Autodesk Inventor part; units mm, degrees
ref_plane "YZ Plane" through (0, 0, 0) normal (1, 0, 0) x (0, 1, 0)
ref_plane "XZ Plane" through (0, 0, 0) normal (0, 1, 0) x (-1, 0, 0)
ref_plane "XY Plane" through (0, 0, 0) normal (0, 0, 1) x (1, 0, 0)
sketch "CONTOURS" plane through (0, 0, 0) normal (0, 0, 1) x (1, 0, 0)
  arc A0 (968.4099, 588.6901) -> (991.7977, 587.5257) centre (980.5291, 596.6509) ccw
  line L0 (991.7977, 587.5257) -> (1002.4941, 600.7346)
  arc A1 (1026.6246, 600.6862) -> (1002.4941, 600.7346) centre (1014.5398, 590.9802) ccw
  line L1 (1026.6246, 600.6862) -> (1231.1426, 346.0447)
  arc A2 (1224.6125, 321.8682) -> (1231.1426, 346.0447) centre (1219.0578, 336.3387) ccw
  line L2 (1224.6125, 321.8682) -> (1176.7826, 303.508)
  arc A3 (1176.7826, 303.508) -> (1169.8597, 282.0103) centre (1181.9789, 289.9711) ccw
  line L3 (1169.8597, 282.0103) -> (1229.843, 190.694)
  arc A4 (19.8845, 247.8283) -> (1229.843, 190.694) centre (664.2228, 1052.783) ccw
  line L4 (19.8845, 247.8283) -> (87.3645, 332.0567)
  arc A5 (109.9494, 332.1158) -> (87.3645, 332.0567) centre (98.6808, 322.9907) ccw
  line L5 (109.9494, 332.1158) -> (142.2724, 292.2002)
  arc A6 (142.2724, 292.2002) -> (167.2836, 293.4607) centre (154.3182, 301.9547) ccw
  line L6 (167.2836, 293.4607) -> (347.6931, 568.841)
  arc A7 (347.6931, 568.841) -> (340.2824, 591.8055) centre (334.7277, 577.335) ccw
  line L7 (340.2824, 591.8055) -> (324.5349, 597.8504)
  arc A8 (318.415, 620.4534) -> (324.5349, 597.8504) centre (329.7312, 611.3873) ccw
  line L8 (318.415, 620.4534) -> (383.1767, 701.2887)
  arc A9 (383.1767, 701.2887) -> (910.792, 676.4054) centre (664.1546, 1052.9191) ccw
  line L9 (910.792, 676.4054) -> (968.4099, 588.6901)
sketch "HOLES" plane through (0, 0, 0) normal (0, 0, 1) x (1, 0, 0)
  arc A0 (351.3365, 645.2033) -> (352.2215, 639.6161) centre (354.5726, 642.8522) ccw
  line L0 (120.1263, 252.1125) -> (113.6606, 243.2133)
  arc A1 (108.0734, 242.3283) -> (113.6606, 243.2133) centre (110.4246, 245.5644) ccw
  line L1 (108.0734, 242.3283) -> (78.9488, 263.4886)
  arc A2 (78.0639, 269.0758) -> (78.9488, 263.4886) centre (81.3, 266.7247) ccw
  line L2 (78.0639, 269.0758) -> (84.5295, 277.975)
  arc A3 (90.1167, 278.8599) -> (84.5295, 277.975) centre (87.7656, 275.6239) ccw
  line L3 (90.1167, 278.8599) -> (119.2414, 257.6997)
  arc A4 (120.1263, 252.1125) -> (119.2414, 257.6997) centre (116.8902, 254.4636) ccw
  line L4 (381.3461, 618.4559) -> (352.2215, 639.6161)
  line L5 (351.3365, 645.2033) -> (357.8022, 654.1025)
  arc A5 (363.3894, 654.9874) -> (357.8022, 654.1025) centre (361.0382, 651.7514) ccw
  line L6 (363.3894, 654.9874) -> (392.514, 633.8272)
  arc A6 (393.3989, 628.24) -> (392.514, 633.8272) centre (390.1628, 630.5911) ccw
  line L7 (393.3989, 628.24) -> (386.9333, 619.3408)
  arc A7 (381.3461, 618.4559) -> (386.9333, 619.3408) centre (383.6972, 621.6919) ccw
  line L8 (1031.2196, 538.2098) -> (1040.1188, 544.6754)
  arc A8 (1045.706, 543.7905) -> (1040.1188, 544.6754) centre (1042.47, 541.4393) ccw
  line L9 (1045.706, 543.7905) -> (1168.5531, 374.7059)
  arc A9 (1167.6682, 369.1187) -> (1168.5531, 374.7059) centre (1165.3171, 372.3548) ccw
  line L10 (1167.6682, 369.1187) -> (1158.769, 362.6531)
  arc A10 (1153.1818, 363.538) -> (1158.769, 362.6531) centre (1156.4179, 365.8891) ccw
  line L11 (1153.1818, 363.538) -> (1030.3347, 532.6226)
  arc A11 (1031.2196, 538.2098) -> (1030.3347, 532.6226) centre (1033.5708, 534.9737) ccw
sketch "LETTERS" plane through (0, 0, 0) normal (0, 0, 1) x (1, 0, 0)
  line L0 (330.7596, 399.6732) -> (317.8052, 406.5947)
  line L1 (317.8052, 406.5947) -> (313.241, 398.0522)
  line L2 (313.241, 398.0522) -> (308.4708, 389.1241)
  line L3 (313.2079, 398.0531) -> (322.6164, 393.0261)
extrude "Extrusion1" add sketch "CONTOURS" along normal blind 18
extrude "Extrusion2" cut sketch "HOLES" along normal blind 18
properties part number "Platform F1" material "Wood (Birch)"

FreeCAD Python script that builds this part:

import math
import FreeCAD as App
import Part
import Sketcher
from FreeCAD import Vector
Q = App.Units.Quantity

doc = App.newDocument("Part")
body = doc.addObject("PartDesign::Body", "Body")

sketch1 = body.newObject("Sketcher::SketchObject", "Sketch")
sketch1.AttachmentSupport = (doc.getObject("XY_Plane"), [""])
sketch1.MapMode = "FlatFace"
sketch1.addGeometry([
    Part.ArcOfCircle(Part.Circle(Vector(981, 597, 0), Vector(0, 0, 1), 14), math.radians(-147), math.radians(-39)),
    Part.LineSegment(Vector(968, 589, 0), Vector(911, 676, 0)),
    Part.ArcOfCircle(Part.Circle(Vector(664, 1053, 0), Vector(0, 0, 1), 450), math.radians(-129), math.radians(-57)),
    Part.LineSegment(Vector(383, 701, 0), Vector(318, 620, 0)),
    Part.ArcOfCircle(Part.Circle(Vector(330, 611, 0), Vector(0, 0, 1), 15), math.radians(141), math.radians(249)),
    Part.LineSegment(Vector(325, 598, 0), Vector(340, 592, 0)),
    Part.ArcOfCircle(Part.Circle(Vector(335, 577, 0), Vector(0, 0, 1), 15), math.radians(-33), math.radians(69)),
    Part.LineSegment(Vector(348, 569, 0), Vector(167, 293, 0)),
    Part.ArcOfCircle(Part.Circle(Vector(154, 302, 0), Vector(0, 0, 1), 16), math.radians(-141), math.radians(-33)),
    Part.LineSegment(Vector(142, 292, 0), Vector(110, 332, 0)),
    Part.ArcOfCircle(Part.Circle(Vector(99, 323, 0), Vector(0, 0, 1), 14), math.radians(39), math.radians(141)),
    Part.LineSegment(Vector(87, 332, 0), Vector(20, 248, 0)),
    Part.ArcOfCircle(Part.Circle(Vector(664, 1053, 0), Vector(0, 0, 1), 1031), math.radians(-129), math.radians(-57)),
    Part.LineSegment(Vector(1230, 191, 0), Vector(1170, 282, 0)),
    Part.ArcOfCircle(Part.Circle(Vector(1182, 290, 0), Vector(0, 0, 1), 14), math.radians(111), math.radians(213)),
    Part.LineSegment(Vector(1177, 304, 0), Vector(1225, 322, 0)),
    Part.ArcOfCircle(Part.Circle(Vector(1219, 336, 0), Vector(0, 0, 1), 16), math.radians(-69), math.radians(39)),
    Part.LineSegment(Vector(1231, 346, 0), Vector(1027, 601, 0)),
    Part.ArcOfCircle(Part.Circle(Vector(1015, 591, 0), Vector(0, 0, 1), 15), math.radians(39), math.radians(141)),
    Part.LineSegment(Vector(1002, 601, 0), Vector(992, 588, 0)),
], False)
sketch1.addConstraint([
    Sketcher.Constraint("Tangent", 0, 1, 1, 1),
    Sketcher.Constraint("Coincident", 1, 2, 2, 2),
    Sketcher.Constraint("Coincident", 2, 1, 3, 1),
    Sketcher.Constraint("Tangent", 3, 2, 4, 1),
    Sketcher.Constraint("Tangent", 4, 2, 5, 1),
    Sketcher.Constraint("Tangent", 5, 2, 6, 2),
    Sketcher.Constraint("Tangent", 6, 1, 7, 1),
    Sketcher.Constraint("Tangent", 7, 2, 8, 2),
    Sketcher.Constraint("Tangent", 8, 1, 9, 1),
    Sketcher.Constraint("Tangent", 9, 2, 10, 1),
    Sketcher.Constraint("Tangent", 10, 2, 11, 1),
    Sketcher.Constraint("Coincident", 11, 2, 12, 1),
    Sketcher.Constraint("Coincident", 12, 2, 13, 1),
    Sketcher.Constraint("Tangent", 13, 2, 14, 2),
    Sketcher.Constraint("Tangent", 14, 1, 15, 1),
    Sketcher.Constraint("Tangent", 15, 2, 16, 1),
    Sketcher.Constraint("Tangent", 16, 2, 17, 1),
    Sketcher.Constraint("Tangent", 17, 2, 18, 1),
    Sketcher.Constraint("Tangent", 18, 2, 19, 1),
    Sketcher.Constraint("Tangent", 19, 2, 0, 2),
    Sketcher.Constraint("Equal", 0, 4),
    Sketcher.Constraint("Equal", 6, 8),
    Sketcher.Constraint("Equal", 4, 10),
    Sketcher.Constraint("Equal", 10, 14),
    Sketcher.Constraint("Equal", 8, 16),
    Sketcher.Constraint("Equal", 16, 18),
    Sketcher.Constraint("Parallel", 3, 11),
    Sketcher.Constraint("Parallel", 1, 13),
    Sketcher.Constraint("Radius", 0, Q("14.5 mm")),
    Sketcher.Constraint("Radius", 6, Q("15.5 mm")),
    Sketcher.Constraint("Angle", 5, Q("-21 deg")),
    Sketcher.Constraint("Angle", 9, Q("129 deg")),
    Sketcher.Constraint("Angle", 15, Q("21 deg")),
    Sketcher.Constraint("Angle", 19, Q("-129 deg")),
    Sketcher.Constraint("Angle", 1, Q("123.2999 deg")),
    Sketcher.Constraint("Angle", 3, Q("-128.7002 deg")),
    Sketcher.Constraint("Radius", 12, Q("1031.079 mm")),
    Sketcher.Constraint("Angle", 7, Q("-123.23 deg")),
    Sketcher.Constraint("Angle", 17, Q("128.77 deg")),
    Sketcher.Constraint("Radius", 2, Q("450.1028 mm")),
    Sketcher.Constraint("DistanceX", -1, 1, 0, 1, Q("968.41 mm")),
    Sketcher.Constraint("DistanceY", -1, 1, 0, 1, Q("588.69 mm")),
    Sketcher.Constraint("DistanceX", 6, 3, 16, 3, Q("884.33 mm")),
    Sketcher.Constraint("DistanceX", 0, 1, 18, 3, Q("46.13 mm")),
    Sketcher.Constraint("DistanceY", 7, 2, 10, 3, Q("29.53 mm")),
    Sketcher.Constraint("DistanceX", 11, 2, 10, 2, Q("67.48 mm")),
    Sketcher.Constraint("DistanceX", 18, 3, 13, 2, Q("155.32 mm")),
    Sketcher.Constraint("DistanceY", 13, 2, 18, 3, Q("308.97 mm")),
    Sketcher.Constraint("Distance", 3, Q("103.578 mm")),
    Sketcher.Constraint("Distance", 7, Q("329.214 mm")),
    Sketcher.Constraint("Distance", 13, Q("109.255 mm")),
    Sketcher.Constraint("DistanceY", -1, 1, 2, 3, Q("1052.919 mm")),
    Sketcher.Constraint("DistanceY", -1, 1, 6, 3, Q("577.335 mm")),
    Sketcher.Constraint("DistanceX", -1, 1, 1, 2, Q("910.792 mm")),
])
pad1 = body.newObject("PartDesign::Pad", "Pad")
pad1.Profile = sketch1
pad1.Length = 18

sketch2 = body.newObject("Sketcher::SketchObject", "Sketch001")
sketch2.AttachmentSupport = (doc.getObject("XY_Plane"), [""])
sketch2.MapMode = "FlatFace"
sketch2.addGeometry([
    Part.LineSegment(Vector(357.8, 654.1, 0), Vector(351.3, 645.2, 0)),
    Part.ArcOfCircle(Part.Circle(Vector(354.6, 642.9, 0), Vector(0, 0, 1), 4), math.radians(144), math.radians(234)),
    Part.LineSegment(Vector(352.2, 639.6, 0), Vector(381.3, 618.5, 0)),
    Part.ArcOfCircle(Part.Circle(Vector(383.7, 621.7, 0), Vector(0, 0, 1), 4), math.radians(-126), math.radians(-36)),
    Part.LineSegment(Vector(386.9, 619.3, 0), Vector(393.4, 628.2, 0)),
    Part.ArcOfCircle(Part.Circle(Vector(390.2, 630.6, 0), Vector(0, 0, 1), 4), math.radians(-36), math.radians(54)),
    Part.LineSegment(Vector(392.5, 633.8, 0), Vector(363.4, 655, 0)),
    Part.ArcOfCircle(Part.Circle(Vector(361, 651.8, 0), Vector(0, 0, 1), 4), math.radians(54), math.radians(144)),
    Part.LineSegment(Vector(113.7, 243.2, 0), Vector(120.1, 252.1, 0)),
    Part.ArcOfCircle(Part.Circle(Vector(116.9, 254.5, 0), Vector(0, 0, 1), 4), math.radians(-36), math.radians(54)),
    Part.LineSegment(Vector(119.2, 257.7, 0), Vector(90.1, 278.9, 0)),
    Part.ArcOfCircle(Part.Circle(Vector(87.8, 275.6, 0), Vector(0, 0, 1), 4), math.radians(54), math.radians(144)),
    Part.LineSegment(Vector(84.5, 278, 0), Vector(78.1, 269.1, 0)),
    Part.ArcOfCircle(Part.Circle(Vector(81.3, 266.7, 0), Vector(0, 0, 1), 4), math.radians(144), math.radians(234)),
    Part.LineSegment(Vector(78.9, 263.5, 0), Vector(108.1, 242.3, 0)),
    Part.ArcOfCircle(Part.Circle(Vector(110.4, 245.6, 0), Vector(0, 0, 1), 4), math.radians(-126), math.radians(-36)),
    Part.LineSegment(Vector(1040.1, 544.7, 0), Vector(1031.2, 538.2, 0)),
    Part.ArcOfCircle(Part.Circle(Vector(1033.6, 535, 0), Vector(0, 0, 1), 4), math.radians(126), math.radians(216)),
    Part.LineSegment(Vector(1030.3, 532.6, 0), Vector(1153.2, 363.5, 0)),
    Part.ArcOfCircle(Part.Circle(Vector(1156.4, 365.9, 0), Vector(0, 0, 1), 4), math.radians(-144), math.radians(-54)),
    Part.LineSegment(Vector(1158.8, 362.7, 0), Vector(1167.7, 369.1, 0)),
    Part.ArcOfCircle(Part.Circle(Vector(1165.3, 372.4, 0), Vector(0, 0, 1), 4), math.radians(-54), math.radians(36)),
    Part.LineSegment(Vector(1168.6, 374.7, 0), Vector(1045.7, 543.8, 0)),
    Part.ArcOfCircle(Part.Circle(Vector(1042.5, 541.4, 0), Vector(0, 0, 1), 4), math.radians(36), math.radians(126)),
], False)
sketch2.addConstraint([
    Sketcher.Constraint("Tangent", 0, 2, 1, 1),
    Sketcher.Constraint("Tangent", 1, 2, 2, 1),
    Sketcher.Constraint("Tangent", 2, 2, 3, 1),
    Sketcher.Constraint("Tangent", 3, 2, 4, 1),
    Sketcher.Constraint("Tangent", 4, 2, 5, 1),
    Sketcher.Constraint("Tangent", 5, 2, 6, 1),
    Sketcher.Constraint("Tangent", 6, 2, 7, 1),
    Sketcher.Constraint("Tangent", 7, 2, 0, 1),
    Sketcher.Constraint("Tangent", 8, 2, 9, 1),
    Sketcher.Constraint("Tangent", 9, 2, 10, 1),
    Sketcher.Constraint("Tangent", 10, 2, 11, 1),
    Sketcher.Constraint("Tangent", 11, 2, 12, 1),
    Sketcher.Constraint("Tangent", 12, 2, 13, 1),
    Sketcher.Constraint("Tangent", 13, 2, 14, 1),
    Sketcher.Constraint("Tangent", 14, 2, 15, 1),
    Sketcher.Constraint("Tangent", 15, 2, 8, 1),
    Sketcher.Constraint("Tangent", 16, 2, 17, 1),
    Sketcher.Constraint("Tangent", 17, 2, 18, 1),
    Sketcher.Constraint("Tangent", 18, 2, 19, 1),
    Sketcher.Constraint("Tangent", 19, 2, 20, 1),
    Sketcher.Constraint("Tangent", 20, 2, 21, 1),
    Sketcher.Constraint("Tangent", 21, 2, 22, 1),
    Sketcher.Constraint("Tangent", 22, 2, 23, 1),
    Sketcher.Constraint("Tangent", 23, 2, 16, 1),
    Sketcher.Constraint("Equal", 1, 3),
    Sketcher.Constraint("Equal", 3, 5),
    Sketcher.Constraint("Equal", 5, 7),
    Sketcher.Constraint("Equal", 7, 9),
    Sketcher.Constraint("Equal", 9, 11),
    Sketcher.Constraint("Equal", 11, 13),
    Sketcher.Constraint("Equal", 13, 15),
    Sketcher.Constraint("Equal", 15, 17),
    Sketcher.Constraint("Equal", 17, 19),
    Sketcher.Constraint("Equal", 19, 21),
    Sketcher.Constraint("Equal", 21, 23),
    Sketcher.Constraint("Perpendicular", 0, 2),
    Sketcher.Constraint("Perpendicular", 2, 4),
    Sketcher.Constraint("Perpendicular", 4, 6),
    Sketcher.Constraint("Perpendicular", 6, 8),
    Sketcher.Constraint("Perpendicular", 8, 10),
    Sketcher.Constraint("Perpendicular", 10, 12),
    Sketcher.Constraint("Perpendicular", 12, 14),
    Sketcher.Constraint("Perpendicular", 16, 18),
    Sketcher.Constraint("Perpendicular", 18, 20),
    Sketcher.Constraint("Perpendicular", 20, 22),
    Sketcher.Constraint("Equal", 4, 8),
    Sketcher.Constraint("Equal", 6, 10),
    Sketcher.Constraint("Equal", 12, 16),
    Sketcher.Constraint("Radius", 1, Q("4 mm")),
    Sketcher.Constraint("Angle", 0, Q("-126.0002 deg")),
    Sketcher.Constraint("Angle", 16, Q("-144.0002 deg")),
    Sketcher.Constraint("Distance", 0, Q("11 mm")),
    Sketcher.Constraint("Distance", 2, Q("36 mm")),
    Sketcher.Constraint("Distance", 18, Q("209 mm")),
    Sketcher.Constraint("DistanceX", -1, 1, 13, 3, Q("81.3 mm")),
    Sketcher.Constraint("DistanceX", -1, 1, 23, 3, Q("1042.47 mm")),
    Sketcher.Constraint("DistanceY", -1, 1, 4, 2, Q("628.24 mm")),
    Sketcher.Constraint("DistanceY", -1, 1, 10, 2, Q("278.86 mm")),
    Sketcher.Constraint("DistanceY", 9, 3, 17, 3, Q("280.51 mm")),
    Sketcher.Constraint("DistanceX", 3, 3, 21, 3, Q("781.62 mm")),
])
pocket1 = body.newObject("PartDesign::Pocket", "Pocket")
pocket1.Profile = sketch2
pocket1.Length = 18
pocket1.Reversed = True

doc.recompute()
